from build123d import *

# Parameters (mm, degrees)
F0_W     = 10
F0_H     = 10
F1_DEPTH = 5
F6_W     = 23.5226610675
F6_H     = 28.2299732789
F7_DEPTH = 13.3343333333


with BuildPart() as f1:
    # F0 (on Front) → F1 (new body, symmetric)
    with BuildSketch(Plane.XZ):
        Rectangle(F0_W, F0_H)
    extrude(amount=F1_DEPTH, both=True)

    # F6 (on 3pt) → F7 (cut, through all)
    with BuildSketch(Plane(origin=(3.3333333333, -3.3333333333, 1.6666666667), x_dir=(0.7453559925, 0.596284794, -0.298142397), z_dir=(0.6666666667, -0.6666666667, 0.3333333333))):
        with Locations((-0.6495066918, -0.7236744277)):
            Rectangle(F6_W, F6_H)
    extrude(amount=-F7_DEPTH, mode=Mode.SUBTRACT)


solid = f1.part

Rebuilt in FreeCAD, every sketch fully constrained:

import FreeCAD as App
import Part
import Sketcher
Q = App.Units.Quantity

doc = App.newDocument("Part")
params = doc.addObject("Spreadsheet::Sheet", "Params")
for row, (alias, value) in enumerate([
    ("sketch1_width", "10 mm"),
    ("pad1_length", "10 mm"),
], start=1):
    params.set(f"A{row}", alias)
    params.set(f"B{row}", "=" + value)
    params.setAlias(f"B{row}", alias)

body = doc.addObject("PartDesign::Body", "Body")

# Sketch on XZ plane
sketch1 = doc.addObject("Sketcher::SketchObject", "Sketch")
body.addObject(sketch1)
sketch1.AttachmentSupport = (doc.XZ_Plane, [""])
sketch1.MapMode = "FlatFace"
sketch1.addGeometry(Part.LineSegment(App.Vector(-5, 5, 0), App.Vector(-5, -5, 0)), False)
sketch1.addGeometry(Part.LineSegment(App.Vector(-5, -5, 0), App.Vector(5, -5, 0)), False)
sketch1.addGeometry(Part.LineSegment(App.Vector(5, -5, 0), App.Vector(5, 5, 0)), False)
sketch1.addGeometry(Part.LineSegment(App.Vector(5, 5, 0), App.Vector(-5, 5, 0)), False)
sketch1.addConstraint(Sketcher.Constraint("Coincident", 0, 2, 1, 1))
sketch1.addConstraint(Sketcher.Constraint("Coincident", 1, 2, 2, 1))
sketch1.addConstraint(Sketcher.Constraint("Coincident", 2, 2, 3, 1))
sketch1.addConstraint(Sketcher.Constraint("Coincident", 3, 2, 0, 1))
sketch1.addConstraint(Sketcher.Constraint("Vertical", 0))
sketch1.addConstraint(Sketcher.Constraint("Horizontal", 1))
sketch1.addConstraint(Sketcher.Constraint("Vertical", 2))
sketch1.addConstraint(Sketcher.Constraint("Horizontal", 3))
sketch1.addConstraint(Sketcher.Constraint("Symmetric", 0, 2, 2, 2, -1, 1))
sketch1.addConstraint(Sketcher.Constraint("Equal", 3, 0))
sketch1.addConstraint(Sketcher.Constraint("DistanceX", 1, 1, 1, 2, Q("10 mm")))
sketch1.setExpression("Constraints[10]", "Params.sketch1_width")
pad1 = doc.addObject("PartDesign::Pad", "Pad")
body.addObject(pad1)
pad1.Profile = sketch1
pad1.setExpression("Length", "Params.pad1_length")
pad1.Midplane = True

# Sketch on an angled plane
sketch2 = doc.addObject("Sketcher::SketchObject", "Sketch001")
body.addObject(sketch2)
sketch2.Placement = App.Placement(App.Vector(3.333333, -3.333333, 1.666667), App.Rotation(App.Vector(0.745355992, 0.596284794, -0.298142397), App.Vector(0, 0.447213595, 0.894427191), App.Vector(0.666666667, -0.666666667, 0.333333333), "ZXY"))
sketch2.addGeometry(Part.LineSegment(App.Vector(-12.410837, 13.391312, 0), App.Vector(-12.410837, -14.838661, 0)), False)
sketch2.addGeometry(Part.LineSegment(App.Vector(-12.410837, -14.838661, 0), App.Vector(11.111824, -14.838661, 0)), False)
sketch2.addGeometry(Part.LineSegment(App.Vector(11.111824, -14.838661, 0), App.Vector(11.111824, 13.391312, 0)), False)
sketch2.addGeometry(Part.LineSegment(App.Vector(11.111824, 13.391312, 0), App.Vector(-12.410837, 13.391312, 0)), False)
sketch2.addConstraint(Sketcher.Constraint("Coincident", 0, 2, 1, 1))
sketch2.addConstraint(Sketcher.Constraint("Coincident", 1, 2, 2, 1))
sketch2.addConstraint(Sketcher.Constraint("Coincident", 2, 2, 3, 1))
sketch2.addConstraint(Sketcher.Constraint("Coincident", 3, 2, 0, 1))
sketch2.addConstraint(Sketcher.Constraint("Vertical", 0))
sketch2.addConstraint(Sketcher.Constraint("Horizontal", 1))
sketch2.addConstraint(Sketcher.Constraint("Vertical", 2))
sketch2.addConstraint(Sketcher.Constraint("Horizontal", 3))
sketch2.addConstraint(Sketcher.Constraint("DistanceX", 1, 1, 1, 2, Q("23.522661 mm")))
sketch2.addConstraint(Sketcher.Constraint("DistanceY", 0, 2, 0, 1, Q("28.229973 mm")))
sketch2.addConstraint(Sketcher.Constraint("DistanceY", 0, 2, -1, 1, Q("14.838661 mm")))
sketch2.addConstraint(Sketcher.Constraint("DistanceX", 0, 2, -1, 1, Q("12.410837 mm")))
pocket1 = doc.addObject("PartDesign::Pocket", "Pocket")
body.addObject(pocket1)
pocket1.Profile = sketch2
pocket1.Type = "ThroughAll"

doc.recompute()
